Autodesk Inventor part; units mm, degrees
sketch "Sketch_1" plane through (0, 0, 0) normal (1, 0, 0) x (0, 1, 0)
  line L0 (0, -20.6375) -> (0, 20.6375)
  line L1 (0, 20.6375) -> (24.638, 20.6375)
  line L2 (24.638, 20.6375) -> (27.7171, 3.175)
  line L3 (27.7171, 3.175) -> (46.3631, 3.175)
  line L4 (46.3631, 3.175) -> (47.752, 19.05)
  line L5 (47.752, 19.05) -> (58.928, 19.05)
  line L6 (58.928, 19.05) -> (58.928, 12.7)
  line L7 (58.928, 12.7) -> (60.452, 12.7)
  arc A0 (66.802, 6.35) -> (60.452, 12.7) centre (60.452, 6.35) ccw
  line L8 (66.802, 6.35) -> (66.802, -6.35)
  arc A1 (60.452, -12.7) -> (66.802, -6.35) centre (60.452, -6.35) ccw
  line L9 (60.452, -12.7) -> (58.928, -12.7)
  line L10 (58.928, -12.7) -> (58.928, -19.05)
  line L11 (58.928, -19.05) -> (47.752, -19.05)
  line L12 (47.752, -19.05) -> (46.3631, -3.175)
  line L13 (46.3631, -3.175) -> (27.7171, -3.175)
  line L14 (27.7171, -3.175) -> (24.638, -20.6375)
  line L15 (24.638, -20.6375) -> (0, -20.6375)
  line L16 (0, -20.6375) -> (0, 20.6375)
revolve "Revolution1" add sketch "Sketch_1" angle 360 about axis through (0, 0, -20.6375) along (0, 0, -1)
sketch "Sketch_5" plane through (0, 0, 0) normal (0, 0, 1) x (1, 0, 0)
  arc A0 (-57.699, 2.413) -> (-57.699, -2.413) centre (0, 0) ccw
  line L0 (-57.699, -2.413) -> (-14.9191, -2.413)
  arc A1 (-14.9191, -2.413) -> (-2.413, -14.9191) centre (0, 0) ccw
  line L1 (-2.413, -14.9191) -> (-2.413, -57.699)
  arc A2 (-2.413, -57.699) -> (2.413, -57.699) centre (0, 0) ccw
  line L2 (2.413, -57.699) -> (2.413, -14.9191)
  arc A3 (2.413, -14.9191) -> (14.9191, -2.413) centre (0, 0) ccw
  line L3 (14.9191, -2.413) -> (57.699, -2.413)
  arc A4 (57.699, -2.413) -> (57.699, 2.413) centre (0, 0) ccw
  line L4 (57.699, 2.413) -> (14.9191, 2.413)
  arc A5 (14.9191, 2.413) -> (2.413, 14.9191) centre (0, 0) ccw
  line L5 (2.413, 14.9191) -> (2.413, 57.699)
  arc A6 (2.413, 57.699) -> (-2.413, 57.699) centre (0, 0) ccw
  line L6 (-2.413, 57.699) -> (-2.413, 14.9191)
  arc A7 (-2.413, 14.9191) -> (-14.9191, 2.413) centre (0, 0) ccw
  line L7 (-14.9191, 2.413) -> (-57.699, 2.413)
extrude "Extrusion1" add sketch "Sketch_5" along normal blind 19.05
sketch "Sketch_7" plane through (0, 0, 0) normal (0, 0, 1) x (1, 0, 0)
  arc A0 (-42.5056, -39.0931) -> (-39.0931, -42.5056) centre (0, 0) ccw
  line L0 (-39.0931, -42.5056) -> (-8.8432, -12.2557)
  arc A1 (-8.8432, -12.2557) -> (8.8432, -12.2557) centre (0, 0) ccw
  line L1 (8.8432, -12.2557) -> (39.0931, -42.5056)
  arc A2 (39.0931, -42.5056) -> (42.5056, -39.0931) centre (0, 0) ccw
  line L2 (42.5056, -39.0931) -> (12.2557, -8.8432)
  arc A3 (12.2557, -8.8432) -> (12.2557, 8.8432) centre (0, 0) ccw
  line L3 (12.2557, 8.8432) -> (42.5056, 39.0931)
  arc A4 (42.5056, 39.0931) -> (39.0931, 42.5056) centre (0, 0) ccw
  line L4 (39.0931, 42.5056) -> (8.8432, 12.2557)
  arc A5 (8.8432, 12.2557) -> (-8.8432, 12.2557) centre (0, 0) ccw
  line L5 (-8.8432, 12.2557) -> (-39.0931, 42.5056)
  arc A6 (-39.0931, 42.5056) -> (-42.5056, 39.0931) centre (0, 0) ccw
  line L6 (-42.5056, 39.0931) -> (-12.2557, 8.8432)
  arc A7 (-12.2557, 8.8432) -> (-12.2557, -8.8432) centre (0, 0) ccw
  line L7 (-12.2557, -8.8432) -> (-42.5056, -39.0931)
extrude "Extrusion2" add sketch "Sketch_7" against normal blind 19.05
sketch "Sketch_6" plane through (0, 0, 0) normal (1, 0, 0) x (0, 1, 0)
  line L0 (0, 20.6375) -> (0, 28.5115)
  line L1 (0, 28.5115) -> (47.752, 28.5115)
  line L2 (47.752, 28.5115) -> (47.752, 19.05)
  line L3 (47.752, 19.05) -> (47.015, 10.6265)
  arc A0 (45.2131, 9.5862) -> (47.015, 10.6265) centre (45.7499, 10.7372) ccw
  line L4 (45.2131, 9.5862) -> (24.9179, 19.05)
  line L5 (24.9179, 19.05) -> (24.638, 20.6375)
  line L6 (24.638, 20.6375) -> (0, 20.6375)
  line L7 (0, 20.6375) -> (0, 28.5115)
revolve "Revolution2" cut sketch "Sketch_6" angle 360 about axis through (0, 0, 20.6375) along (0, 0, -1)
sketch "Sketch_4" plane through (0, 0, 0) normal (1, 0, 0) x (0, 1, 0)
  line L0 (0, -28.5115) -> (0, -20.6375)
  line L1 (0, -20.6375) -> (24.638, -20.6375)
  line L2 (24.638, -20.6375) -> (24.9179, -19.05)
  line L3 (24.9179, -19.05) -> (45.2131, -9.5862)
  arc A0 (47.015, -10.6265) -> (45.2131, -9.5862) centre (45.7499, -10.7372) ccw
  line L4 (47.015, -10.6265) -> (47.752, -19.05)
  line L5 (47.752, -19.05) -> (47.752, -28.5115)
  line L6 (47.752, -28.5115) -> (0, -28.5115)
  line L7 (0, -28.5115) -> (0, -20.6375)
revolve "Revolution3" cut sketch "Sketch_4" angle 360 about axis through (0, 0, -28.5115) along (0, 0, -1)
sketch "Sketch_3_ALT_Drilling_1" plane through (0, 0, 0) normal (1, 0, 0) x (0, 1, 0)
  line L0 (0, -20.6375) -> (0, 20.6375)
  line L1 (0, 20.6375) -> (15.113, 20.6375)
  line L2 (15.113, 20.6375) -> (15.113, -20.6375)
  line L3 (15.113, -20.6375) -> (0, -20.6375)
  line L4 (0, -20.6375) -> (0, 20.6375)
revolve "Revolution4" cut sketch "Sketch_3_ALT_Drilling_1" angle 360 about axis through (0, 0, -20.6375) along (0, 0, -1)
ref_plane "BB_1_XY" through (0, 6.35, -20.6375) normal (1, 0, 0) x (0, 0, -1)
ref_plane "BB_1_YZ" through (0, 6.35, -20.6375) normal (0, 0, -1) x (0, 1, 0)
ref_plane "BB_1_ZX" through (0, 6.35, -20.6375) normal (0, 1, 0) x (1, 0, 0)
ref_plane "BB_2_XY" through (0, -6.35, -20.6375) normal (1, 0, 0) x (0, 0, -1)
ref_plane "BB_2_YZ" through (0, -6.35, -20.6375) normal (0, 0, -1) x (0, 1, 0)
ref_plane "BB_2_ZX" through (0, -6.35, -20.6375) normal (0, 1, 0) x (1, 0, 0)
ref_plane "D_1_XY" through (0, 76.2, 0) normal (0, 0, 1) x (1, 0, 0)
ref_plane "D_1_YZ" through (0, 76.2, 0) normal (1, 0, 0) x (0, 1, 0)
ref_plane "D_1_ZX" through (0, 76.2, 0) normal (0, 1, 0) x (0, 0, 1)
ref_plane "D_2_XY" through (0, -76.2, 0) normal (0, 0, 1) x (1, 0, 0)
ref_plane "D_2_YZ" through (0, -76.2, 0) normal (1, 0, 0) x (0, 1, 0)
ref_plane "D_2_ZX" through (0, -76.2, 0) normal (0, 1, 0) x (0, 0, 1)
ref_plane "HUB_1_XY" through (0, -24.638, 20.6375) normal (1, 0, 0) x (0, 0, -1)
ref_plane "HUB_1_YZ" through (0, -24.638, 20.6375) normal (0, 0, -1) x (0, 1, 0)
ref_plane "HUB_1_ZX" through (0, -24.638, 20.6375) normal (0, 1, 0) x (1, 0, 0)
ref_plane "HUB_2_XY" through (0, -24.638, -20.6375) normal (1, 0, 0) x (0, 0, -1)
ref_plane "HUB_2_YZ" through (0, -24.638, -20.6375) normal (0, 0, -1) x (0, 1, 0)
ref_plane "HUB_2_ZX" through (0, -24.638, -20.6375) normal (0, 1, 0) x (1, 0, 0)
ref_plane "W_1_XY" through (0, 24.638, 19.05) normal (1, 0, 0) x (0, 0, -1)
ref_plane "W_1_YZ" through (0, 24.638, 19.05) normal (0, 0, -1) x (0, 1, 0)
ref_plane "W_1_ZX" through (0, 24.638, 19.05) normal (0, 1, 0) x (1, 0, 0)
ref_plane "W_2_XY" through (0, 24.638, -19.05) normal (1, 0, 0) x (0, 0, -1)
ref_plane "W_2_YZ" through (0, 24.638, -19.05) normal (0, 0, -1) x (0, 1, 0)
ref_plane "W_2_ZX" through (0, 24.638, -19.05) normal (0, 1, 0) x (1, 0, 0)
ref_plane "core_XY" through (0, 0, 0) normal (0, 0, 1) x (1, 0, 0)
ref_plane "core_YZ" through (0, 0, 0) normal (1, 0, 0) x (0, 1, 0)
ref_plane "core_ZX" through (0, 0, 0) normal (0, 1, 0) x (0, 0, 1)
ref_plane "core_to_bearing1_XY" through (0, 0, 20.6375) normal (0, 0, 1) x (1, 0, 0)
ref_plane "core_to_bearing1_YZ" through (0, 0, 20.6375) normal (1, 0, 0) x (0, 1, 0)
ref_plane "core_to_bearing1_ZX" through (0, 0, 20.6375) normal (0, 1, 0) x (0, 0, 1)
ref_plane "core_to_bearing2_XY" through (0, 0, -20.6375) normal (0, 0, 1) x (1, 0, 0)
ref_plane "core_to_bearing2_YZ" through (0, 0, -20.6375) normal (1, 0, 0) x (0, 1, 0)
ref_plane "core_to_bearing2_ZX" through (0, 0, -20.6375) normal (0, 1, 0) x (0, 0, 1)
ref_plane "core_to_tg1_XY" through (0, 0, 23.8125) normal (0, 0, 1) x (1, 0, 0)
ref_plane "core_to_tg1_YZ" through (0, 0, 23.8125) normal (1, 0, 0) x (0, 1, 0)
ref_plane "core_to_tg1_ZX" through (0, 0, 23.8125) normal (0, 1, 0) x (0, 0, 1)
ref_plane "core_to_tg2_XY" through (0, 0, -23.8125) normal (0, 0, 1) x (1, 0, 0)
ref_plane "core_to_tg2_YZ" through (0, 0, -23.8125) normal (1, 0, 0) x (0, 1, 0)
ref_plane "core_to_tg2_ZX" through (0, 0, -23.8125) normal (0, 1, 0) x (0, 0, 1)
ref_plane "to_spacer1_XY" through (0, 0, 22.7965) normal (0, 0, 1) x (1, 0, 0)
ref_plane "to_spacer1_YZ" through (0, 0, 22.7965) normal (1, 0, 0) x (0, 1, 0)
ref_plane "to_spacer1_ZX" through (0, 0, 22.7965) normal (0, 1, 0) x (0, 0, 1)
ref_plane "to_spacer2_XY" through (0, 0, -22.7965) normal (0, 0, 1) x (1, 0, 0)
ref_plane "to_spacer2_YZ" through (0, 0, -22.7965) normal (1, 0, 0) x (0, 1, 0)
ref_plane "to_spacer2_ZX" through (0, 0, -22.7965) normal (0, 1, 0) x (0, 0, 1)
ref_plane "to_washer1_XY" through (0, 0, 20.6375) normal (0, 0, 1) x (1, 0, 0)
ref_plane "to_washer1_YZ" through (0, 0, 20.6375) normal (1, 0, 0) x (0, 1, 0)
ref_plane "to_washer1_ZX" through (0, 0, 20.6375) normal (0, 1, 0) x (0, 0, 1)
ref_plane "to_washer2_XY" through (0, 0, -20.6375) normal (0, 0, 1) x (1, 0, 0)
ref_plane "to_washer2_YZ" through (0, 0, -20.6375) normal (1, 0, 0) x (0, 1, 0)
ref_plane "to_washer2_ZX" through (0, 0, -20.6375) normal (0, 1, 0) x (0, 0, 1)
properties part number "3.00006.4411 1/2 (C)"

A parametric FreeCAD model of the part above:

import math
import FreeCAD as App
import Part
import Sketcher
Q = App.Units.Quantity

doc = App.newDocument("Part")
body = doc.addObject("PartDesign::Body", "Body")

# Sketch on YZ plane
sketch1 = doc.addObject("Sketcher::SketchObject", "Sketch")
body.addObject(sketch1)
sketch1.AttachmentSupport = (doc.YZ_Plane, [""])
sketch1.MapMode = "FlatFace"
sketch1.addGeometry([
    Part.LineSegment(App.Vector(0, 20.6, 0), App.Vector(0, -20.6, 0)),  # 0
    Part.LineSegment(App.Vector(0, -20.6, 0), App.Vector(24.6, -20.6, 0)),  # 1
    Part.LineSegment(App.Vector(24.6, -20.6, 0), App.Vector(27.7, -3.2, 0)),  # 2
    Part.LineSegment(App.Vector(27.7, -3.2, 0), App.Vector(46.4, -3.2, 0)),  # 3
    Part.LineSegment(App.Vector(46.4, -3.2, 0), App.Vector(47.8, -19.1, 0)),  # 4
    Part.LineSegment(App.Vector(47.8, -19.1, 0), App.Vector(58.9, -19.1, 0)),  # 5
    Part.LineSegment(App.Vector(58.9, -19.1, 0), App.Vector(58.9, -12.7, 0)),  # 6
    Part.LineSegment(App.Vector(58.9, -12.7, 0), App.Vector(60.5, -12.7, 0)),  # 7
    Part.ArcOfCircle(Part.Circle(App.Vector(60.5, -6.3, 0), App.Vector(0, 0, 1), 6.3), math.radians(-90), math.radians(0)),  # 8
    Part.LineSegment(App.Vector(66.8, -6.3, 0), App.Vector(66.8, 6.3, 0)),  # 9
    Part.ArcOfCircle(Part.Circle(App.Vector(60.5, 6.3, 0), App.Vector(0, 0, 1), 6.4), math.radians(0), math.radians(90)),  # 10
    Part.LineSegment(App.Vector(60.5, 12.7, 0), App.Vector(58.9, 12.7, 0)),  # 11
    Part.LineSegment(App.Vector(58.9, 12.7, 0), App.Vector(58.9, 19.1, 0)),  # 12
    Part.LineSegment(App.Vector(58.9, 19.1, 0), App.Vector(47.8, 19.1, 0)),  # 13
    Part.LineSegment(App.Vector(47.8, 19.1, 0), App.Vector(46.4, 3.2, 0)),  # 14
    Part.LineSegment(App.Vector(46.4, 3.2, 0), App.Vector(27.7, 3.2, 0)),  # 15
    Part.LineSegment(App.Vector(27.7, 3.2, 0), App.Vector(24.6, 20.6, 0)),  # 16
    Part.LineSegment(App.Vector(24.6, 20.6, 0), App.Vector(0, 20.6, 0)),  # 17
], False)
sketch1.addConstraint([
    Sketcher.Constraint("Coincident", 0, 2, 1, 1),
    Sketcher.Constraint("Coincident", 1, 2, 2, 1),
    Sketcher.Constraint("Coincident", 2, 2, 3, 1),
    Sketcher.Constraint("Coincident", 3, 2, 4, 1),
    Sketcher.Constraint("Coincident", 4, 2, 5, 1),
    Sketcher.Constraint("Coincident", 5, 2, 6, 1),
    Sketcher.Constraint("Coincident", 6, 2, 7, 1),
    Sketcher.Constraint("Tangent", 7, 2, 8, 1),
    Sketcher.Constraint("Tangent", 8, 2, 9, 1),
    Sketcher.Constraint("Tangent", 9, 2, 10, 1),
    Sketcher.Constraint("Tangent", 10, 2, 11, 1),
    Sketcher.Constraint("Coincident", 11, 2, 12, 1),
    Sketcher.Constraint("Coincident", 12, 2, 13, 1),
    Sketcher.Constraint("Coincident", 13, 2, 14, 1),
    Sketcher.Constraint("Coincident", 14, 2, 15, 1),
    Sketcher.Constraint("Coincident", 15, 2, 16, 1),
    Sketcher.Constraint("Coincident", 16, 2, 17, 1),
    Sketcher.Constraint("Coincident", 17, 2, 0, 1),
    Sketcher.Constraint("Vertical", 0),
    Sketcher.Constraint("Horizontal", 1),
    Sketcher.Constraint("Horizontal", 3),
    Sketcher.Constraint("Horizontal", 5),
    Sketcher.Constraint("Vertical", 6),
    Sketcher.Constraint("Horizontal", 7),
    Sketcher.Constraint("Vertical", 9),
    Sketcher.Constraint("Horizontal", 11),
    Sketcher.Constraint("Vertical", 12),
    Sketcher.Constraint("Horizontal", 13),
    Sketcher.Constraint("Horizontal", 15),
    Sketcher.Constraint("Horizontal", 17),
    Sketcher.Constraint("Equal", 8, 10),
    Sketcher.Constraint("Symmetric", 0, 2, 17, 2, -1, 1),
    Sketcher.Constraint("Symmetric", 6, 2, 11, 2, -1),
    Sketcher.Constraint("Symmetric", 4, 2, 13, 2, -1),
    Sketcher.Constraint("Symmetric", 3, 2, 14, 2, -1),
    Sketcher.Constraint("Vertical", 2, 2, 15, 2),
    Sketcher.Constraint("Vertical", 1, 2, 16, 2),
    Sketcher.Constraint("Radius", 8, Q("0.25 in")),
    Sketcher.Constraint("DistanceY", 9, 1, 9, 2, Q("0.5 in")),
    Sketcher.Constraint("Angle", 2, Q("80 deg")),
    Sketcher.Constraint("Angle", 4, Q("-85 deg")),
    Sketcher.Constraint("DistanceY", 4, 2, 10, 3, Q("1 in")),
    Sketcher.Constraint("DistanceX", 1, 1, 1, 2, Q("0.97 in")),
    Sketcher.Constraint("DistanceX", 5, 1, 5, 2, Q("0.44 in")),
    Sketcher.Constraint("DistanceX", 7, 1, 7, 2, Q("0.06 in")),
    Sketcher.Constraint("DistanceY", 0, 2, 0, 1, Q("1.625 in")),
    Sketcher.Constraint("DistanceX", -1, 1, 8, 3, Q("2.38 in")),
    Sketcher.Constraint("DistanceY", 3, 2, 14, 2, Q("0.25 in")),
])
revolution = doc.addObject("PartDesign::Revolution", "Revolution")
body.addObject(revolution)
revolution.Profile = sketch1
revolution.ReferenceAxis = (sketch1, ["V_Axis"])
revolution.Angle = 360

# Sketch on XY plane
sketch2 = doc.addObject("Sketcher::SketchObject", "Sketch001")
body.addObject(sketch2)
sketch2.AttachmentSupport = (doc.XY_Plane, [""])
sketch2.MapMode = "FlatFace"
sketch2.addGeometry([
    Part.LineSegment(App.Vector(-14.9, 2.4, 0), App.Vector(-57.7, 2.4, 0)),  # 0
    Part.ArcOfCircle(Part.Circle(App.Vector(0, 0, 0), App.Vector(0, 0, 1), 57.7), math.radians(177.61), math.radians(182.39)),  # 1
    Part.LineSegment(App.Vector(-57.7, -2.4, 0), App.Vector(-14.9, -2.4, 0)),  # 2
    Part.ArcOfCircle(Part.Circle(App.Vector(0, 0, 0), App.Vector(0, 0, 1), 15.1), math.radians(-171), math.radians(-99)),  # 3
    Part.LineSegment(App.Vector(-2.4, -14.9, 0), App.Vector(-2.4, -57.7, 0)),  # 4
    Part.ArcOfCircle(Part.Circle(App.Vector(0, 0, 0), App.Vector(0, 0, 1), 57.7), math.radians(-92.39), math.radians(-87.61)),  # 5
    Part.LineSegment(App.Vector(2.4, -57.7, 0), App.Vector(2.4, -14.9, 0)),  # 6
    Part.ArcOfCircle(Part.Circle(App.Vector(0, 0, 0), App.Vector(0, 0, 1), 15.1), math.radians(-81), math.radians(-9)),  # 7
    Part.LineSegment(App.Vector(14.9, -2.4, 0), App.Vector(57.7, -2.4, 0)),  # 8
    Part.ArcOfCircle(Part.Circle(App.Vector(0, 0, 0), App.Vector(0, 0, 1), 57.7), math.radians(-2.39), math.radians(2.39)),  # 9
    Part.LineSegment(App.Vector(57.7, 2.4, 0), App.Vector(14.9, 2.4, 0)),  # 10
    Part.ArcOfCircle(Part.Circle(App.Vector(0, 0, 0), App.Vector(0, 0, 1), 15.1), math.radians(9), math.radians(81)),  # 11
    Part.LineSegment(App.Vector(2.4, 14.9, 0), App.Vector(2.4, 57.7, 0)),  # 12
    Part.ArcOfCircle(Part.Circle(App.Vector(0, 0, 0), App.Vector(0, 0, 1), 57.7), math.radians(87.61), math.radians(92.39)),  # 13
    Part.LineSegment(App.Vector(-2.4, 57.7, 0), App.Vector(-2.4, 14.9, 0)),  # 14
    Part.ArcOfCircle(Part.Circle(App.Vector(0, 0, 0), App.Vector(0, 0, 1), 15.1), math.radians(99), math.radians(171)),  # 15
], False)
sketch2.addConstraint([
    Sketcher.Constraint("Coincident", 0, 2, 1, 1),
    Sketcher.Constraint("Coincident", 1, 2, 2, 1),
    Sketcher.Constraint("Coincident", 2, 2, 3, 1),
    Sketcher.Constraint("Coincident", 3, 2, 4, 1),
    Sketcher.Constraint("Coincident", 4, 2, 5, 1),
    Sketcher.Constraint("Coincident", 5, 2, 6, 1),
    Sketcher.Constraint("Coincident", 6, 2, 7, 1),
    Sketcher.Constraint("Coincident", 7, 2, 8, 1),
    Sketcher.Constraint("Coincident", 8, 2, 9, 1),
    Sketcher.Constraint("Coincident", 9, 2, 10, 1),
    Sketcher.Constraint("Coincident", 10, 2, 11, 1),
    Sketcher.Constraint("Coincident", 11, 2, 12, 1),
    Sketcher.Constraint("Coincident", 12, 2, 13, 1),
    Sketcher.Constraint("Coincident", 13, 2, 14, 1),
    Sketcher.Constraint("Coincident", 14, 2, 15, 1),
    Sketcher.Constraint("Coincident", 15, 2, 0, 1),
    Sketcher.Constraint("Horizontal", 0),
    Sketcher.Constraint("Horizontal", 2),
    Sketcher.Constraint("Vertical", 4),
    Sketcher.Constraint("Vertical", 6),
    Sketcher.Constraint("Horizontal", 8),
    Sketcher.Constraint("Horizontal", 10),
    Sketcher.Constraint("Vertical", 12),
    Sketcher.Constraint("Vertical", 14),
    Sketcher.Constraint("Coincident", 1, 3, -1, 1),
    Sketcher.Constraint("Coincident", 3, 3, -1, 1),
    Sketcher.Constraint("Coincident", 5, 3, -1, 1),
    Sketcher.Constraint("Coincident", 7, 3, -1, 1),
    Sketcher.Constraint("Coincident", 9, 3, -1, 1),
    Sketcher.Constraint("Coincident", 11, 3, -1, 1),
    Sketcher.Constraint("Coincident", 13, 3, -1, 1),
    Sketcher.Constraint("Coincident", 15, 3, -1, 1),
    Sketcher.Constraint("Equal", 1, 5),
    Sketcher.Constraint("Equal", 3, 7),
    Sketcher.Constraint("Equal", 5, 9),
    Sketcher.Constraint("Equal", 7, 11),
    Sketcher.Constraint("Equal", 9, 13),
    Sketcher.Constraint("Equal", 11, 15),
    Sketcher.Constraint("Horizontal", 4, 2, 5, 2),
    Sketcher.Constraint("Horizontal", 2, 2, 7, 2),
    Sketcher.Constraint("Horizontal", 0, 2, 9, 2),
    Sketcher.Constraint("Horizontal", 12, 2, 13, 2),
    Sketcher.Constraint("Vertical", 0, 2, 1, 2),
    Sketcher.Constraint("Vertical", 6, 2, 11, 2),
    Sketcher.Constraint("Equal", 10, 4),
    Sketcher.Constraint("Radius", 3, Q("0.595 in")),
    Sketcher.Constraint("Radius", 1, Q("2.2736 in")),
    Sketcher.Constraint("DistanceY", 1, 2, 0, 2, Q("0.19 in")),
])
pad1 = doc.addObject("PartDesign::Pad", "Pad")
body.addObject(pad1)
pad1.Profile = sketch2
pad1.Length = Q("0.75 in")

# Sketch on XY plane
sketch3 = doc.addObject("Sketcher::SketchObject", "Sketch002")
body.addObject(sketch3)
sketch3.AttachmentSupport = (doc.XY_Plane, [""])
sketch3.MapMode = "FlatFace"
sketch3.addGeometry([
    Part.LineSegment(App.Vector(-12.3, -8.8, 0), App.Vector(-42.5, -39.1, 0)),  # 0
    Part.ArcOfCircle(Part.Circle(App.Vector(0, 0, 0), App.Vector(0, 0, 1), 57.7), math.radians(-137.39), math.radians(-132.61)),  # 1
    Part.LineSegment(App.Vector(-39.1, -42.5, 0), App.Vector(-8.8, -12.3, 0)),  # 2
    Part.ArcOfCircle(Part.Circle(App.Vector(0, 0, 0), App.Vector(0, 0, 1), 15.1), math.radians(-126), math.radians(-54)),  # 3
    Part.LineSegment(App.Vector(8.8, -12.3, 0), App.Vector(39.1, -42.5, 0)),  # 4
    Part.ArcOfCircle(Part.Circle(App.Vector(0, 0, 0), App.Vector(0, 0, 1), 57.7), math.radians(-47.39), math.radians(-42.61)),  # 5
    Part.LineSegment(App.Vector(42.5, -39.1, 0), App.Vector(12.3, -8.8, 0)),  # 6
    Part.ArcOfCircle(Part.Circle(App.Vector(0, 0, 0), App.Vector(0, 0, 1), 15.1), math.radians(-36), math.radians(36)),  # 7
    Part.LineSegment(App.Vector(12.3, 8.8, 0), App.Vector(42.5, 39.1, 0)),  # 8
    Part.ArcOfCircle(Part.Circle(App.Vector(0, 0, 0), App.Vector(0, 0, 1), 57.7), math.radians(42.61), math.radians(47.39)),  # 9
    Part.LineSegment(App.Vector(39.1, 42.5, 0), App.Vector(8.8, 12.3, 0)),  # 10
    Part.ArcOfCircle(Part.Circle(App.Vector(0, 0, 0), App.Vector(0, 0, 1), 15.1), math.radians(54), math.radians(126)),  # 11
    Part.LineSegment(App.Vector(-8.8, 12.3, 0), App.Vector(-39.1, 42.5, 0)),  # 12
    Part.ArcOfCircle(Part.Circle(App.Vector(0, 0, 0), App.Vector(0, 0, 1), 57.7), math.radians(132.61), math.radians(137.39)),  # 13
    Part.LineSegment(App.Vector(-42.5, 39.1, 0), App.Vector(-12.3, 8.8, 0)),  # 14
    Part.ArcOfCircle(Part.Circle(App.Vector(0, 0, 0), App.Vector(0, 0, 1), 15.1), math.radians(144), math.radians(216)),  # 15
], False)
sketch3.addConstraint([
    Sketcher.Constraint("Coincident", 0, 2, 1, 1),
    Sketcher.Constraint("Coincident", 1, 2, 2, 1),
    Sketcher.Constraint("Coincident", 2, 2, 3, 1),
    Sketcher.Constraint("Coincident", 3, 2, 4, 1),
    Sketcher.Constraint("Coincident", 4, 2, 5, 1),
    Sketcher.Constraint("Coincident", 5, 2, 6, 1),
    Sketcher.Constraint("Coincident", 6, 2, 7, 1),
    Sketcher.Constraint("Coincident", 7, 2, 8, 1),
    Sketcher.Constraint("Coincident", 8, 2, 9, 1),
    Sketcher.Constraint("Coincident", 9, 2, 10, 1),
    Sketcher.Constraint("Coincident", 10, 2, 11, 1),
    Sketcher.Constraint("Coincident", 11, 2, 12, 1),
    Sketcher.Constraint("Coincident", 12, 2, 13, 1),
    Sketcher.Constraint("Coincident", 13, 2, 14, 1),
    Sketcher.Constraint("Coincident", 14, 2, 15, 1),
    Sketcher.Constraint("Coincident", 15, 2, 0, 1),
    Sketcher.Constraint("Coincident", 1, 3, -1, 1),
    Sketcher.Constraint("Coincident", 3, 3, -1, 1),
    Sketcher.Constraint("Coincident", 5, 3, -1, 1),
    Sketcher.Constraint("Coincident", 7, 3, -1, 1),
    Sketcher.Constraint("Coincident", 9, 3, -1, 1),
    Sketcher.Constraint("Coincident", 11, 3, -1, 1),
    Sketcher.Constraint("Coincident", 13, 3, -1, 1),
    Sketcher.Constraint("Coincident", 15, 3, -1, 1),
    Sketcher.Constraint("Equal", 1, 5),
    Sketcher.Constraint("Equal", 3, 7),
    Sketcher.Constraint("Equal", 5, 9),
    Sketcher.Constraint("Equal", 7, 11),
    Sketcher.Constraint("Equal", 9, 13),
    Sketcher.Constraint("Equal", 11, 15),
    Sketcher.Constraint("Parallel", 0, 2),
    Sketcher.Constraint("Perpendicular", 2, 4),
    Sketcher.Constraint("Parallel", 4, 6),
    Sketcher.Constraint("Perpendicular", 6, 8),
    Sketcher.Constraint("Parallel", 8, 10),
    Sketcher.Constraint("Perpendicular", 10, 12),
    Sketcher.Constraint("Parallel", 12, 14),
    Sketcher.Constraint("Horizontal", 2, 2, 3, 2),
    Sketcher.Constraint("Horizontal", 1, 2, 4, 2),
    Sketcher.Constraint("Horizontal", 0, 2, 5, 2),
    Sketcher.Constraint("Horizontal", 10, 2, 11, 2),
    Sketcher.Constraint("Horizontal", 8, 2, 13, 2),
    Sketcher.Constraint("Vertical", 6, 2, 7, 2),
    Sketcher.Constraint("Vertical", 4, 2, 9, 2),
    Sketcher.Constraint("Equal", 0, 2),
    Sketcher.Constraint("Radius", 3, Q("0.595 in")),
    Sketcher.Constraint("Radius", 1, Q("2.2736 in")),
    Sketcher.Constraint("DistanceY", 0, 2, -1, 1, Q("1.5391 in")),
])
pad2 = doc.addObject("PartDesign::Pad", "Pad001")
body.addObject(pad2)
pad2.Profile = sketch3
pad2.Length = Q("0.75 in")
pad2.Reversed = True

# Sketch on YZ plane
sketch4 = doc.addObject("Sketcher::SketchObject", "Sketch003")
body.addObject(sketch4)
sketch4.AttachmentSupport = (doc.YZ_Plane, [""])
sketch4.MapMode = "FlatFace"
sketch4.addGeometry([
    Part.LineSegment(App.Vector(0, 28.5, 0), App.Vector(0, 20.6, 0)),  # 0
    Part.LineSegment(App.Vector(0, 20.6, 0), App.Vector(24.6, 20.6, 0)),  # 1
    Part.LineSegment(App.Vector(24.6, 20.6, 0), App.Vector(24.9, 19.1, 0)),  # 2
    Part.LineSegment(App.Vector(24.9, 19.1, 0), App.Vector(45.2, 9.6, 0)),  # 3
    Part.ArcOfCircle(Part.Circle(App.Vector(45.7, 10.7, 0), App.Vector(0, 0, 1), 1.3), math.radians(-115), math.radians(-5)),  # 4
    Part.LineSegment(App.Vector(47, 10.6, 0), App.Vector(47.8, 19.1, 0)),  # 5
    Part.LineSegment(App.Vector(47.8, 19.1, 0), App.Vector(47.8, 28.5, 0)),  # 6
    Part.LineSegment(App.Vector(47.8, 28.5, 0), App.Vector(0, 28.5, 0)),  # 7
], False)
sketch4.addConstraint([
    Sketcher.Constraint("Coincident", 0, 2, 1, 1),
    Sketcher.Constraint("Coincident", 1, 2, 2, 1),
    Sketcher.Constraint("Coincident", 2, 2, 3, 1),
    Sketcher.Constraint("Tangent", 3, 2, 4, 1),
    Sketcher.Constraint("Tangent", 4, 2, 5, 1),
    Sketcher.Constraint("Coincident", 5, 2, 6, 1),
    Sketcher.Constraint("Coincident", 6, 2, 7, 1),
    Sketcher.Constraint("Coincident", 7, 2, 0, 1),
    Sketcher.Constraint("Vertical", 0),
    Sketcher.Constraint("Horizontal", 1),
    Sketcher.Constraint("Vertical", 6),
    Sketcher.Constraint("Horizontal", 7),
    Sketcher.Constraint("PointOnObject", 0, 2, -2),
    Sketcher.Constraint("Horizontal", 2, 2, 5, 2),
    Sketcher.Constraint("Radius", 4, Q("0.05 in")),
    Sketcher.Constraint("Angle", 2, Q("-80.0007 deg")),
    Sketcher.Constraint("Angle", 3, Q("-25 deg")),
    Sketcher.Constraint("Angle", 5, Q("84.9997 deg")),
    Sketcher.Constraint("DistanceX", 1, 1, 1, 2, Q("0.97 in")),
    Sketcher.Constraint("DistanceX", 7, 2, 7, 1, Q("1.88 in")),
    Sketcher.Constraint("DistanceY", 0, 2, 0, 1, Q("0.31 in")),
    Sketcher.Constraint("DistanceY", -1, 1, 2, 2, Q("0.75 in")),
    Sketcher.Constraint("DistanceY", 6, 1, 6, 2, Q("0.3725 in")),
])
groove = doc.addObject("PartDesign::Groove", "Groove")
body.addObject(groove)
groove.Profile = sketch4
groove.ReferenceAxis = (sketch4, ["V_Axis"])
groove.Angle = 360

# Sketch on YZ plane
sketch5 = doc.addObject("Sketcher::SketchObject", "Sketch004")
body.addObject(sketch5)
sketch5.AttachmentSupport = (doc.YZ_Plane, [""])
sketch5.MapMode = "FlatFace"
sketch5.addGeometry([
    Part.LineSegment(App.Vector(0, -20.6, 0), App.Vector(0, -28.5, 0)),  # 0
    Part.LineSegment(App.Vector(0, -28.5, 0), App.Vector(47.8, -28.5, 0)),  # 1
    Part.LineSegment(App.Vector(47.8, -28.5, 0), App.Vector(47.8, -19.1, 0)),  # 2
    Part.LineSegment(App.Vector(47.8, -19.1, 0), App.Vector(47, -10.6, 0)),  # 3
    Part.ArcOfCircle(Part.Circle(App.Vector(45.7, -10.7, 0), App.Vector(0, 0, 1), 1.3), math.radians(5), math.radians(115)),  # 4
    Part.LineSegment(App.Vector(45.2, -9.6, 0), App.Vector(24.9, -19.1, 0)),  # 5
    Part.LineSegment(App.Vector(24.9, -19.1, 0), App.Vector(24.6, -20.6, 0)),  # 6
    Part.LineSegment(App.Vector(24.6, -20.6, 0), App.Vector(0, -20.6, 0)),  # 7
], False)
sketch5.addConstraint([
    Sketcher.Constraint("Coincident", 0, 2, 1, 1),
    Sketcher.Constraint("Coincident", 1, 2, 2, 1),
    Sketcher.Constraint("Coincident", 2, 2, 3, 1),
    Sketcher.Constraint("Tangent", 3, 2, 4, 1),
    Sketcher.Constraint("Tangent", 4, 2, 5, 1),
    Sketcher.Constraint("Coincident", 5, 2, 6, 1),
    Sketcher.Constraint("Coincident", 6, 2, 7, 1),
    Sketcher.Constraint("Coincident", 7, 2, 0, 1),
    Sketcher.Constraint("Vertical", 0),
    Sketcher.Constraint("Horizontal", 1),
    Sketcher.Constraint("Vertical", 2),
    Sketcher.Constraint("Horizontal", 7),
    Sketcher.Constraint("PointOnObject", 0, 2, -2),
    Sketcher.Constraint("Horizontal", 2, 2, 5, 2),
    Sketcher.Constraint("Radius", 4, Q("0.05 in")),
    Sketcher.Constraint("Angle", 3, Q("95.0003 deg")),
    Sketcher.Constraint("Angle", 5, Q("-155 deg")),
    Sketcher.Constraint("Angle", 6, Q("-99.9993 deg")),
    Sketcher.Constraint("DistanceX", 1, 1, 1, 2, Q("1.88 in")),
    Sketcher.Constraint("DistanceX", 7, 2, 7, 1, Q("0.97 in")),
    Sketcher.Constraint("DistanceY", 0, 2, 0, 1, Q("0.31 in")),
    Sketcher.Constraint("DistanceY", 2, 2, -1, 1, Q("0.75 in")),
    Sketcher.Constraint("DistanceY", 2, 1, 2, 2, Q("0.3725 in")),
])
groove2 = doc.addObject("PartDesign::Groove", "Groove001")
body.addObject(groove2)
groove2.Profile = sketch5
groove2.ReferenceAxis = (sketch5, ["V_Axis"])
groove2.Angle = 360

# Sketch on YZ plane
sketch6 = doc.addObject("Sketcher::SketchObject", "Sketch005")
body.addObject(sketch6)
sketch6.AttachmentSupport = (doc.YZ_Plane, [""])
sketch6.MapMode = "FlatFace"
sketch6.addGeometry([
    Part.LineSegment(App.Vector(0, 21, 0), App.Vector(0, -21, 0)),
    Part.LineSegment(App.Vector(0, -21, 0), App.Vector(15, -21, 0)),
    Part.LineSegment(App.Vector(15, -21, 0), App.Vector(15, 21, 0)),
    Part.LineSegment(App.Vector(15, 21, 0), App.Vector(0, 21, 0)),
], False)
sketch6.addConstraint([
    Sketcher.Constraint("Coincident", 0, 2, 1, 1),
    Sketcher.Constraint("Coincident", 1, 2, 2, 1),
    Sketcher.Constraint("Coincident", 2, 2, 3, 1),
    Sketcher.Constraint("Coincident", 3, 2, 0, 1),
    Sketcher.Constraint("Vertical", 0),
    Sketcher.Constraint("Horizontal", 1),
    Sketcher.Constraint("Vertical", 2),
    Sketcher.Constraint("Horizontal", 3),
    Sketcher.Constraint("Symmetric", 0, 2, 3, 2, -1, 1),
    Sketcher.Constraint("DistanceX", 1, 1, 1, 2, Q("0.595 in")),
    Sketcher.Constraint("DistanceY", 0, 2, 0, 1, Q("1.625 in")),
])
groove3 = doc.addObject("PartDesign::Groove", "Groove002")
body.addObject(groove3)
groove3.Profile = sketch6
groove3.ReferenceAxis = (sketch6, ["V_Axis"])
groove3.Angle = 360

doc.recompute()
